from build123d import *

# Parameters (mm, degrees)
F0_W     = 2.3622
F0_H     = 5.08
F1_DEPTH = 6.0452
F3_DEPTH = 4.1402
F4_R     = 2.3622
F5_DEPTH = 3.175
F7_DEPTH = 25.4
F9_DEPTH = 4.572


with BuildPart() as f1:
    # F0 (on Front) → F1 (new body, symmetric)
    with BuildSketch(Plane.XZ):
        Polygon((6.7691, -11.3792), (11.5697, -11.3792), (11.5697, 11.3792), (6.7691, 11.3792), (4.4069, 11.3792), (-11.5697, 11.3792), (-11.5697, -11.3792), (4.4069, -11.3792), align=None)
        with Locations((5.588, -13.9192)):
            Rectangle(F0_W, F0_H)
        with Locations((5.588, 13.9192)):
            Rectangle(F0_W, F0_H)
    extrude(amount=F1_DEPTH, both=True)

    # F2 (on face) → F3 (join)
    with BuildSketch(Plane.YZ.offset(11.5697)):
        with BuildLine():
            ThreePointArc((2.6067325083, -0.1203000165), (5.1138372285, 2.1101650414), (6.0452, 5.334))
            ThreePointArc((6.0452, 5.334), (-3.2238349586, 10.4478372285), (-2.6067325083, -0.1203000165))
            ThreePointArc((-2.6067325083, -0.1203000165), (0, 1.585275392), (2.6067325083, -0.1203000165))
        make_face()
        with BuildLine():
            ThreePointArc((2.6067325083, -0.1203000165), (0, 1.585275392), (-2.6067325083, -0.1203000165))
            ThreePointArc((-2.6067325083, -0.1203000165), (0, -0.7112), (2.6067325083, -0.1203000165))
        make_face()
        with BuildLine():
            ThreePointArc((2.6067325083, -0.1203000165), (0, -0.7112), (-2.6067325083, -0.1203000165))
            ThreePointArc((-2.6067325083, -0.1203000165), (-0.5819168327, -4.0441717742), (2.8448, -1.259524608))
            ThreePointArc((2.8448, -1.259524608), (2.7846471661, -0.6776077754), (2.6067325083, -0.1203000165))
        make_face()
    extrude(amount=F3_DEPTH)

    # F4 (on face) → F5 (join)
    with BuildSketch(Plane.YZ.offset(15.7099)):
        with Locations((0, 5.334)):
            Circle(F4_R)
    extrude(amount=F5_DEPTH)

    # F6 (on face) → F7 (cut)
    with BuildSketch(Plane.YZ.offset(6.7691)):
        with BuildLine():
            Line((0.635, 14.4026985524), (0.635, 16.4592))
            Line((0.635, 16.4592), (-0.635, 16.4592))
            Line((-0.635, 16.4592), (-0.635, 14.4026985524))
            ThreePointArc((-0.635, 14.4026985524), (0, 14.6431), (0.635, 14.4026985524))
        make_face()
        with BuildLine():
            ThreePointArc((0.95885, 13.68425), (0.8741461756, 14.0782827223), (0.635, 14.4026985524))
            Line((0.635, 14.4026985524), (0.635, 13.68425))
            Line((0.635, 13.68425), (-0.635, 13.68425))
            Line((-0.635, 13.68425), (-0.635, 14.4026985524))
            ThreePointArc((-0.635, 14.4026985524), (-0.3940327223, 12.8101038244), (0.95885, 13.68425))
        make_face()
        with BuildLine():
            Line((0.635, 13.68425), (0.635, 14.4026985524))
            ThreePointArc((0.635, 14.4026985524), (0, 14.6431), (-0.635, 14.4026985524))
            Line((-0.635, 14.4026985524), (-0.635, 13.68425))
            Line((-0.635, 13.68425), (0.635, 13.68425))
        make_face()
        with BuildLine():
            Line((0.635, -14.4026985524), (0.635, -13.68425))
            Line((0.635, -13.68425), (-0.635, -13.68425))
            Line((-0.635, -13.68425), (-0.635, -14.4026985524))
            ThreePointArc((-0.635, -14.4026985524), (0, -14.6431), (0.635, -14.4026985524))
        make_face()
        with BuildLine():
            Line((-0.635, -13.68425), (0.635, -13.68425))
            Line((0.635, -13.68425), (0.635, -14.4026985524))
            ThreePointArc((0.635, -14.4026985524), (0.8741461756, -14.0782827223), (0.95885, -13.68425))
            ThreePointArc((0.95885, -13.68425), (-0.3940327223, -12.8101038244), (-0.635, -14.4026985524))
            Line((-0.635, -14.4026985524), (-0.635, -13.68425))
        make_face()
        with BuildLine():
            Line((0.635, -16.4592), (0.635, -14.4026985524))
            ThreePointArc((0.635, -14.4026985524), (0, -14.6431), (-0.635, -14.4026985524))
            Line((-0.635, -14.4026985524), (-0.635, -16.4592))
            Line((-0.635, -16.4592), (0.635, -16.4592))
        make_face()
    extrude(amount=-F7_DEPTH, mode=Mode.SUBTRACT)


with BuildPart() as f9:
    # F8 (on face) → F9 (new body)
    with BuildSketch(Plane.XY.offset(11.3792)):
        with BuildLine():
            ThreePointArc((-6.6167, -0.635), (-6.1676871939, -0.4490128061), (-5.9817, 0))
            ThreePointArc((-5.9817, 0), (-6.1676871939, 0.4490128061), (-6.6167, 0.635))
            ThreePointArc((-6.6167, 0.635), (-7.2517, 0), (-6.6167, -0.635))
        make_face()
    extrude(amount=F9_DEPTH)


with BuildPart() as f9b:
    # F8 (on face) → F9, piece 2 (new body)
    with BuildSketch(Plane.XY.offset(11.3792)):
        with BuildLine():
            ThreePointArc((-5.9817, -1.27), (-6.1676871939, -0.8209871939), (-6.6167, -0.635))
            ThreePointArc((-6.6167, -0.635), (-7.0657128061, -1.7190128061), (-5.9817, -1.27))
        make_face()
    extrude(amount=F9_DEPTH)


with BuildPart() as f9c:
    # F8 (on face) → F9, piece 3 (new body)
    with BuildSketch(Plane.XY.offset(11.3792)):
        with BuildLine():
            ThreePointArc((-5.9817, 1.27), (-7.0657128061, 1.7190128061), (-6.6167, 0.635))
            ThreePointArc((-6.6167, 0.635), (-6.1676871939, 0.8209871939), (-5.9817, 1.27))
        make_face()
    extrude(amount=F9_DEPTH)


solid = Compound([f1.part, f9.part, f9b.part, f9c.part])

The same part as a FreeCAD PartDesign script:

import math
import FreeCAD as App
import Part
import Sketcher

V = App.Vector
Q = App.Units.Quantity


def add_polygon(sketch, points):
    """Adds a closed chain of lines whose ends are joined by coincident constraints."""
    first, n = sketch.GeometryCount, len(points)
    for a, b in zip(points, points[1:] + points[:1]):
        sketch.addGeometry(Part.LineSegment(App.Vector(*a, 0), App.Vector(*b, 0)), False)
    for i in range(n):
        sketch.addConstraint(Sketcher.Constraint("Coincident", first + i, 2, first + (i + 1) % n, 1))

doc = App.newDocument("Part")
body = doc.addObject("PartDesign::Body", "Body")

# Sketch on XZ plane
sketch1 = doc.addObject("Sketcher::SketchObject", "Sketch")
body.addObject(sketch1)
sketch1.AttachmentSupport = (doc.XZ_Plane, [""])
sketch1.MapMode = "FlatFace"
add_polygon(sketch1, [(11.6, -11.4), (11.6, 11.4), (6.8, 11.4), (6.8, 16.5), (4.4, 16.5), (4.4, 11.4), (-11.6, 11.4), (-11.6, -11.4), (4.4, -11.4), (4.4, -16.5), (6.8, -16.5), (6.8, -11.4)])  # lines 0-11
sketch1.addConstraint([
    Sketcher.Constraint("Vertical", 0),
    Sketcher.Constraint("Horizontal", 1),
    Sketcher.Constraint("Vertical", 2),
    Sketcher.Constraint("Horizontal", 3),
    Sketcher.Constraint("Vertical", 4),
    Sketcher.Constraint("Horizontal", 5),
    Sketcher.Constraint("Vertical", 6),
    Sketcher.Constraint("Horizontal", 7),
    Sketcher.Constraint("Vertical", 8),
    Sketcher.Constraint("Horizontal", 9),
    Sketcher.Constraint("Vertical", 10),
    Sketcher.Constraint("Horizontal", 11),
    Sketcher.Constraint("Symmetric", 0, 2, 6, 2, -1, 1),
    Sketcher.Constraint("Symmetric", 4, 2, 7, 2, -1),
    Sketcher.Constraint("Symmetric", 2, 2, 9, 2, -1),
    Sketcher.Constraint("Horizontal", 7, 2, 10, 2),
    Sketcher.Constraint("DistanceY", 2, 1, 2, 2, Q("0.2 in")),
    Sketcher.Constraint("DistanceX", 1, 2, 1, 1, Q("0.189 in")),
    Sketcher.Constraint("DistanceX", 3, 2, 3, 1, Q("0.093 in")),
    Sketcher.Constraint("DistanceX", 5, 2, 5, 1, Q("0.629 in")),
    Sketcher.Constraint("DistanceY", 0, 1, 0, 2, Q("0.896 in")),
])
pad1 = doc.addObject("PartDesign::Pad", "Pad")
body.addObject(pad1)
pad1.Profile = sketch1
pad1.Length = Q("0.476 in")
pad1.Midplane = True

# Sketch on YZ plane
sketch2 = doc.addObject("Sketcher::SketchObject", "Sketch001")
body.addObject(sketch2)
sketch2.AttachmentSupport = (doc.YZ_Plane, [""])
sketch2.MapMode = "FlatFace"
sketch2.AttachmentOffset = App.Placement(V(0, 0, 0.4555 * 25.4), App.Rotation())
sketch2.addGeometry([
    Part.ArcOfCircle(Part.Circle(V(0, 5.3, 0), V(0, 0, 1), 6), math.radians(-64), math.radians(0)),
    Part.ArcOfCircle(Part.Circle(V(0, 5.3, 0), V(0, 0, 1), 6), math.radians(0), math.radians(244)),
    Part.ArcOfCircle(Part.Circle(V(0, -1.3, 0), V(0, 0, 1), 2.8), math.radians(156), math.radians(360)),
    Part.ArcOfCircle(Part.Circle(V(0, -1.3, 0), V(0, 0, 1), 2.8), math.radians(0), math.radians(24)),
], False)
sketch2.addConstraint([
    Sketcher.Constraint("Tangent", 0, 2, 1, 1),
    Sketcher.Constraint("Coincident", 1, 2, 2, 1),
    Sketcher.Constraint("Tangent", 2, 2, 3, 1),
    Sketcher.Constraint("Coincident", 3, 2, 0, 1),
    Sketcher.Constraint("Equal", 0, 1),
    Sketcher.Constraint("Equal", 2, 3),
    Sketcher.Constraint("Symmetric", 1, 2, 3, 2, -2),
    Sketcher.Constraint("Horizontal", 1, 3, 0, 2),
    Sketcher.Constraint("Horizontal", 3, 3, 2, 2),
    Sketcher.Constraint("Radius", 0, Q("0.238 in")),
    Sketcher.Constraint("Radius", 2, Q("0.112 in")),
    Sketcher.Constraint("DistanceY", -1, 1, 0, 3, Q("0.21 in")),
    Sketcher.Constraint("DistanceY", 1, 2, -1, 1, Q("0.1203 mm")),
])
pad2 = doc.addObject("PartDesign::Pad", "Pad001")
body.addObject(pad2)
pad2.Profile = sketch2
pad2.Length = Q("0.163 in")

# Sketch on YZ plane
sketch3 = doc.addObject("Sketcher::SketchObject", "Sketch002")
body.addObject(sketch3)
sketch3.AttachmentSupport = (doc.YZ_Plane, [""])
sketch3.MapMode = "FlatFace"
sketch3.AttachmentOffset = App.Placement(V(0, 0, 0.6185 * 25.4), App.Rotation())
sketch3.addGeometry(Part.Circle(V(0, 5.3, 0), V(0, 0, 1), 2.4), False)
sketch3.addConstraint([
    Sketcher.Constraint("PointOnObject", 0, 3, -2),
    Sketcher.Constraint("Diameter", 0, Q("0.186 in")),
    Sketcher.Constraint("DistanceY", -1, 1, 0, 3, Q("0.21 in")),
])
pad3 = doc.addObject("PartDesign::Pad", "Pad002")
body.addObject(pad3)
pad3.Profile = sketch3
pad3.Length = Q("0.125 in")

# Sketch on YZ plane
sketch4 = doc.addObject("Sketcher::SketchObject", "Sketch003")
body.addObject(sketch4)
sketch4.AttachmentSupport = (doc.YZ_Plane, [""])
sketch4.MapMode = "FlatFace"
sketch4.AttachmentOffset = App.Placement(V(0, 0, 0.2665 * 25.4), App.Rotation())
sketch4.addGeometry([
    Part.LineSegment(V(0.6, 14.4, 0), V(0.6, 16.5, 0)),  # 0
    Part.LineSegment(V(0.6, 16.5, 0), V(-0.6, 16.5, 0)),  # 1
    Part.LineSegment(V(-0.6, 16.5, 0), V(-0.6, 14.4, 0)),  # 2
    Part.ArcOfCircle(Part.Circle(V(0, 13.7, 0), V(0, 0, 1), 1), math.radians(131), math.radians(360)),  # 3
    Part.ArcOfCircle(Part.Circle(V(0, 13.7, 0), V(0, 0, 1), 1), math.radians(0), math.radians(49)),  # 4
    Part.ArcOfCircle(Part.Circle(V(0, -13.7, 0), V(0, 0, 1), 1), math.radians(-49), math.radians(0)),  # 5
    Part.ArcOfCircle(Part.Circle(V(0, -13.7, 0), V(0, 0, 1), 1), math.radians(0), math.radians(229)),  # 6
    Part.LineSegment(V(-0.6, -14.4, 0), V(-0.6, -16.5, 0)),  # 7
    Part.LineSegment(V(-0.6, -16.5, 0), V(0.6, -16.5, 0)),  # 8
    Part.LineSegment(V(0.6, -16.5, 0), V(0.6, -14.4, 0)),  # 9
], False)
sketch4.addConstraint([
    Sketcher.Constraint("Coincident", 0, 2, 1, 1),
    Sketcher.Constraint("Coincident", 1, 2, 2, 1),
    Sketcher.Constraint("Coincident", 2, 2, 3, 1),
    Sketcher.Constraint("Tangent", 3, 2, 4, 1),
    Sketcher.Constraint("Coincident", 4, 2, 0, 1),
    Sketcher.Constraint("Tangent", 5, 2, 6, 1),
    Sketcher.Constraint("Coincident", 6, 2, 7, 1),
    Sketcher.Constraint("Coincident", 7, 2, 8, 1),
    Sketcher.Constraint("Coincident", 8, 2, 9, 1),
    Sketcher.Constraint("Coincident", 9, 2, 5, 1),
    Sketcher.Constraint("Vertical", 0),
    Sketcher.Constraint("Horizontal", 1),
    Sketcher.Constraint("Vertical", 2),
    Sketcher.Constraint("Vertical", 7),
    Sketcher.Constraint("Horizontal", 8),
    Sketcher.Constraint("Vertical", 9),
    Sketcher.Constraint("Equal", 3, 4),
    Sketcher.Constraint("Equal", 4, 5),
    Sketcher.Constraint("Equal", 5, 6),
    Sketcher.Constraint("Symmetric", 3, 3, 5, 3, -1, 1),
    Sketcher.Constraint("Symmetric", 0, 2, 7, 2, -1, 1),
    Sketcher.Constraint("Symmetric", 2, 2, 4, 2, -2),
    Sketcher.Constraint("Horizontal", 4, 3, 3, 2),
    Sketcher.Constraint("Horizontal", 6, 3, 5, 2),
    Sketcher.Constraint("Horizontal", 6, 2, 9, 2),
    Sketcher.Constraint("DistanceX", 1, 2, 1, 1, Q("0.05 in")),
    Sketcher.Constraint("DistanceY", -1, 1, 0, 2, Q("0.648 in")),
    Sketcher.Constraint("Radius", 3, Q("0.95885 mm")),
    Sketcher.Constraint("DistanceY", 0, 1, 0, 2, Q("2.056501 mm")),
])
pocket1 = doc.addObject("PartDesign::Pocket", "Pocket")
body.addObject(pocket1)
pocket1.Profile = sketch4
pocket1.Length = Q("1 in")
body2 = doc.addObject("PartDesign::Body", "Body001")

# Sketch on XY plane
sketch5 = doc.addObject("Sketcher::SketchObject", "Sketch004")
body2.addObject(sketch5)
sketch5.AttachmentSupport = (doc.getObject("XY_Plane001"), [""])
sketch5.MapMode = "FlatFace"
sketch5.AttachmentOffset = App.Placement(V(0, 0, 0.448 * 25.4), App.Rotation())
sketch5.addGeometry([
    Part.ArcOfCircle(Part.Circle(V(-6.6, 0, 0), V(0, 0, 1), 0.6), math.radians(-90), math.radians(0)),
    Part.ArcOfCircle(Part.Circle(V(-6.6, 0, 0), V(0, 0, 1), 0.6), math.radians(0), math.radians(90)),
    Part.ArcOfCircle(Part.Circle(V(-6.6, 0, 0), V(0, 0, 1), 0.6), math.radians(90), math.radians(270)),
], False)
sketch5.addConstraint([
    Sketcher.Constraint("Tangent", 0, 2, 1, 1),
    Sketcher.Constraint("Tangent", 1, 2, 2, 1),
    Sketcher.Constraint("Tangent", 2, 2, 0, 1),
    Sketcher.Constraint("Symmetric", 1, 2, 2, 2, -1),
    Sketcher.Constraint("PointOnObject", 0, 2, -1),
    Sketcher.Constraint("Vertical", 2, 3, 1, 2),
    Sketcher.Constraint("Radius", 0, Q("0.025 in")),
    Sketcher.Constraint("DistanceX", 0, 3, -1, 1, Q("0.2605 in")),
])
pad4 = doc.addObject("PartDesign::Pad", "Pad003")
body2.addObject(pad4)
pad4.Profile = sketch5
pad4.Length = Q("0.18 in")
body3 = doc.addObject("PartDesign::Body", "Body002")

# Sketch on XY plane
sketch6 = doc.addObject("Sketcher::SketchObject", "Sketch005")
body3.addObject(sketch6)
sketch6.AttachmentSupport = (doc.getObject("XY_Plane002"), [""])
sketch6.MapMode = "FlatFace"
sketch6.AttachmentOffset = App.Placement(V(0, 0, 0.448 * 25.4), App.Rotation())
sketch6.addGeometry([
    Part.ArcOfCircle(Part.Circle(V(-6.6, -1.3, 0), V(0, 0, 1), 0.6), math.radians(0), math.radians(90)),
    Part.ArcOfCircle(Part.Circle(V(-6.6, -1.3, 0), V(0, 0, 1), 0.6), math.radians(90), math.radians(360)),
], False)
sketch6.addConstraint([
    Sketcher.Constraint("Tangent", 0, 1, 1, 2),
    Sketcher.Constraint("Coincident", 1, 1, 0, 2),
    Sketcher.Constraint("Horizontal", 1, 3, 0, 1),
    Sketcher.Constraint("Vertical", 0, 3, 1, 1),
    Sketcher.Constraint("Radius", 0, Q("0.025 in")),
    Sketcher.Constraint("DistanceY", 0, 3, -1, 1, Q("0.05 in")),
    Sketcher.Constraint("DistanceX", 0, 3, -1, 1, Q("0.2605 in")),
])
pad5 = doc.addObject("PartDesign::Pad", "Pad004")
body3.addObject(pad5)
pad5.Profile = sketch6
pad5.Length = Q("0.18 in")
body4 = doc.addObject("PartDesign::Body", "Body003")

# Sketch on XY plane
sketch7 = doc.addObject("Sketcher::SketchObject", "Sketch006")
body4.addObject(sketch7)
sketch7.AttachmentSupport = (doc.getObject("XY_Plane003"), [""])
sketch7.MapMode = "FlatFace"
sketch7.AttachmentOffset = App.Placement(V(0, 0, 0.448 * 25.4), App.Rotation())
sketch7.addGeometry([
    Part.ArcOfCircle(Part.Circle(V(-6.6, 1.3, 0), V(0, 0, 1), 0.6), math.radians(0), math.radians(270)),
    Part.ArcOfCircle(Part.Circle(V(-6.6, 1.3, 0), V(0, 0, 1), 0.6), math.radians(-90), math.radians(0)),
], False)
sketch7.addConstraint([
    Sketcher.Constraint("Tangent", 0, 1, 1, 2),
    Sketcher.Constraint("Coincident", 1, 1, 0, 2),
    Sketcher.Constraint("Horizontal", 1, 3, 0, 1),
    Sketcher.Constraint("Vertical", 0, 3, 1, 1),
    Sketcher.Constraint("Radius", 0, Q("0.025 in")),
    Sketcher.Constraint("DistanceY", -1, 1, 0, 3, Q("0.05 in")),
    Sketcher.Constraint("DistanceX", 0, 3, -1, 1, Q("0.2605 in")),
])
pad6 = doc.addObject("PartDesign::Pad", "Pad005")
body4.addObject(pad6)
pad6.Profile = sketch7
pad6.Length = Q("0.18 in")

doc.recompute()
